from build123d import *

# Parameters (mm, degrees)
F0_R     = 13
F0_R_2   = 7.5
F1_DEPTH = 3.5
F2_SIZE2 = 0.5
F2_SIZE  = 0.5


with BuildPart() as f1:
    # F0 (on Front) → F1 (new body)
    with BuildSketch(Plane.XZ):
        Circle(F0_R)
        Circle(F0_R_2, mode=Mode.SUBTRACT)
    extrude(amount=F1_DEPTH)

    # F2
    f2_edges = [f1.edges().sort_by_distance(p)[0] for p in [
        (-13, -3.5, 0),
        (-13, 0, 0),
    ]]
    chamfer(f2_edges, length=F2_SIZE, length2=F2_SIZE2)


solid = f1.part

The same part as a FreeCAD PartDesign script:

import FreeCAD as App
import Part
import Sketcher
from FreeCAD import Vector


def edges_at(feature, points):
    """Names of the edges that pass closest to the given points."""
    edges = feature.Shape.Edges
    near = lambda p: min(range(len(edges)), key=lambda i: edges[i].distToShape(Part.Vertex(*p))[0])
    return sorted({f"Edge{near(p) + 1}" for p in points})

doc = App.newDocument("Part")
body = doc.addObject("PartDesign::Body", "Body")

sketch1 = doc.addObject("Sketcher::SketchObject", "Sketch")
body.addObject(sketch1)
sketch1.AttachmentSupport = (doc.XZ_Plane, [""])
sketch1.MapMode = "FlatFace"
sketch1.addGeometry([
    Part.Circle(Vector(0, 0, 0), Vector(0, 0, 1), 13),
    Part.Circle(Vector(0, 0, 0), Vector(0, 0, 1), 7.5),
], False)
sketch1.addConstraint([
    Sketcher.Constraint("Coincident", 0, 3, -1, 1),
    Sketcher.Constraint("Coincident", 1, 3, -1, 1),
    Sketcher.Constraint("Diameter", 0, 26.0),
    Sketcher.Constraint("Diameter", 1, 15.0),
])
pad1 = doc.addObject("PartDesign::Pad", "Pad")
body.addObject(pad1)
pad1.Profile = sketch1
pad1.Length = 3.5
doc.recompute()

chamfer = doc.addObject("PartDesign::Chamfer", "Chamfer")
body.addObject(chamfer)
chamfer.Base = (pad1, edges_at(pad1, [(-13, -3.5, 0), (-13, 0, 0)]))
chamfer.ChamferType = "Two distances"
chamfer.Size = 0.5
chamfer.Size2 = 0.5

doc.recompute()
